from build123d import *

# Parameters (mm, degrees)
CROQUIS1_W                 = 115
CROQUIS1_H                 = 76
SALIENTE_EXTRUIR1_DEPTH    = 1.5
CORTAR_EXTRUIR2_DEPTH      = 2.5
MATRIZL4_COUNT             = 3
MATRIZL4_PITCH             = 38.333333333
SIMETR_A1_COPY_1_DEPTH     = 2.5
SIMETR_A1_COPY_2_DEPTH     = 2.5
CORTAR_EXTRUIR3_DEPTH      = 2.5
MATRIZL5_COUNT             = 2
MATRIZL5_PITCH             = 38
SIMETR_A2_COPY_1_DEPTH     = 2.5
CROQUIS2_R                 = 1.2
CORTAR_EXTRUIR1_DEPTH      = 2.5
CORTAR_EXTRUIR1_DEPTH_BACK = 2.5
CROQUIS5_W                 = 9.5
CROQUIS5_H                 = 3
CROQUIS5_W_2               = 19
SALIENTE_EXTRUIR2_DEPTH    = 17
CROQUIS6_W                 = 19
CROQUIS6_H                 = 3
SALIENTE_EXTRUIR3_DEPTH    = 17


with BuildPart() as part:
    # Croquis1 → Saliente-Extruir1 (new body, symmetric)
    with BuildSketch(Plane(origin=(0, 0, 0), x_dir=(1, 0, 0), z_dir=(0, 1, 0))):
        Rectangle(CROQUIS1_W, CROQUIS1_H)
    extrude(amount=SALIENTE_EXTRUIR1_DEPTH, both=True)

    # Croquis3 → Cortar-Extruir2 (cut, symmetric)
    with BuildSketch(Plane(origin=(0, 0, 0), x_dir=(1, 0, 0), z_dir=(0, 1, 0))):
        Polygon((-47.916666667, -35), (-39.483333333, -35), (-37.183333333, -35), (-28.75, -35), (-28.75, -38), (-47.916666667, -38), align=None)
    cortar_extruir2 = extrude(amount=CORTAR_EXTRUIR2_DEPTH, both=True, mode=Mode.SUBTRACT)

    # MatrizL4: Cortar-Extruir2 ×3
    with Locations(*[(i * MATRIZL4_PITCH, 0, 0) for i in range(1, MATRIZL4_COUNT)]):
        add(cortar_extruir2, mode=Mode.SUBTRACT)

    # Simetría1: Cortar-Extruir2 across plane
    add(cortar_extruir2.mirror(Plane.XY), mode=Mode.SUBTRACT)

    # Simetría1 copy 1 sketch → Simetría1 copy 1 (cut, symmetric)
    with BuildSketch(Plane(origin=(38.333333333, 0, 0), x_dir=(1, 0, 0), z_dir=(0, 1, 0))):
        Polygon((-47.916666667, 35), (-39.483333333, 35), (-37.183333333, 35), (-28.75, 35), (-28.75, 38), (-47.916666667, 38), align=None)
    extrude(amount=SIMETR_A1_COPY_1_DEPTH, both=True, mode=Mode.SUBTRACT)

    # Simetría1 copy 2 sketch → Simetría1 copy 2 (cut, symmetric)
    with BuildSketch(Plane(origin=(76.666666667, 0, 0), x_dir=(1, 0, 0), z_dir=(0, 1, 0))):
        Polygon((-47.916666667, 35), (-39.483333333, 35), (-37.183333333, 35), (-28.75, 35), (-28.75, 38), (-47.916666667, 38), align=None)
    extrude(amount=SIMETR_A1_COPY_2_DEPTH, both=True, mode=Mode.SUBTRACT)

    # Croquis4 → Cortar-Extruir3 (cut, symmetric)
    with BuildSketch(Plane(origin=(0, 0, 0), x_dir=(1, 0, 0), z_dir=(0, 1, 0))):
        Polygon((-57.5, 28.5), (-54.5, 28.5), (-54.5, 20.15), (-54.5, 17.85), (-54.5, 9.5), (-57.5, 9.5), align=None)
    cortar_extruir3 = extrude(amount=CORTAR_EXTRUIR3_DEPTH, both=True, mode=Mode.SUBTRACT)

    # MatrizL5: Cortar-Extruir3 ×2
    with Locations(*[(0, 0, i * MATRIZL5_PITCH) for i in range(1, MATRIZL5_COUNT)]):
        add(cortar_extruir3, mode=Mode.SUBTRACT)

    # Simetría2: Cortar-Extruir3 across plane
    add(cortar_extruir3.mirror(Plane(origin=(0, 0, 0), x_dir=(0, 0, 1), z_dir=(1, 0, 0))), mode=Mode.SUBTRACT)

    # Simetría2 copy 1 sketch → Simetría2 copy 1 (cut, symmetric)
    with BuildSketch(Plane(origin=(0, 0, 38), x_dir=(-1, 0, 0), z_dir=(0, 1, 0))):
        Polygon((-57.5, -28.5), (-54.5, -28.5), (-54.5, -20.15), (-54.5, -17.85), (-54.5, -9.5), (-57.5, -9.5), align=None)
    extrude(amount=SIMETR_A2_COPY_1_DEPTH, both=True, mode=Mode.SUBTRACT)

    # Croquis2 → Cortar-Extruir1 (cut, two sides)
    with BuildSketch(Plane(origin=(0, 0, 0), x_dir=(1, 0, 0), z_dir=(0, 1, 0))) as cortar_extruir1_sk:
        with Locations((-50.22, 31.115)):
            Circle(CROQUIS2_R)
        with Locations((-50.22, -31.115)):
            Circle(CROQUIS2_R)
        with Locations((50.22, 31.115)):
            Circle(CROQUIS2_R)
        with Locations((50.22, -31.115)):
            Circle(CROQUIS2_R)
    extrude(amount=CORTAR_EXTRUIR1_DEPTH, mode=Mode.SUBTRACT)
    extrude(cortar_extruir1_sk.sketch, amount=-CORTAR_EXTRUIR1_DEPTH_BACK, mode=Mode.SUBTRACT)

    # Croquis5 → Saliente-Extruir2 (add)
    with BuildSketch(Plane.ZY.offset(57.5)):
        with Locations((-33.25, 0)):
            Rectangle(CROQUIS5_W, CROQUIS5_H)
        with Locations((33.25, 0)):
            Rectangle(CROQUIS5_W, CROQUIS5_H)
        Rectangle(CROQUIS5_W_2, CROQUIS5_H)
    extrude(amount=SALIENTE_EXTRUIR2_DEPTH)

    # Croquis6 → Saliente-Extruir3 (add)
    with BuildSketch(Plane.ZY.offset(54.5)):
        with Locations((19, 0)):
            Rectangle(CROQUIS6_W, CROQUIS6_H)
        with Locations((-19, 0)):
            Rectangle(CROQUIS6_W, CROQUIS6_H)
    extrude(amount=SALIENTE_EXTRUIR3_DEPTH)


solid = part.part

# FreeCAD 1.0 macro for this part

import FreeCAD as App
import Part
import Sketcher

V = App.Vector

doc = App.newDocument("Part")
body = doc.addObject("PartDesign::Body", "Body")

# Sketch on XZ plane
sketch1 = body.newObject("Sketcher::SketchObject", "Sketch")
sketch1.AttachmentSupport = (doc.getObject("XZ_Plane"), [""])
sketch1.MapMode = "FlatFace"
sketch1.addGeometry([
    Part.LineSegment(V(-58, -38, 0), V(-58, 38, 0)),
    Part.LineSegment(V(-58, 38, 0), V(58, 38, 0)),
    Part.LineSegment(V(58, 38, 0), V(58, -38, 0)),
    Part.LineSegment(V(58, -38, 0), V(-58, -38, 0)),
], False)
sketch1.addConstraint([
    Sketcher.Constraint("Coincident", 0, 2, 1, 1),
    Sketcher.Constraint("Coincident", 1, 2, 2, 1),
    Sketcher.Constraint("Coincident", 2, 2, 3, 1),
    Sketcher.Constraint("Coincident", 3, 2, 0, 1),
    Sketcher.Constraint("Vertical", 0),
    Sketcher.Constraint("Horizontal", 1),
    Sketcher.Constraint("Vertical", 2),
    Sketcher.Constraint("Horizontal", 3),
    Sketcher.Constraint("Symmetric", 0, 2, 2, 2, -1, 1),
    Sketcher.Constraint("DistanceX", 1, 1, 1, 2, 115.0),
    Sketcher.Constraint("DistanceY", 0, 1, 0, 2, 76.0),
])
pad1 = body.newObject("PartDesign::Pad", "Pad")
pad1.Profile = sketch1
pad1.Length = 3
pad1.Midplane = True

# Sketch on XZ plane
sketch2 = body.newObject("Sketcher::SketchObject", "Sketch001")
sketch2.AttachmentSupport = (doc.getObject("XZ_Plane"), [""])
sketch2.MapMode = "FlatFace"
sketch2.addGeometry([
    Part.LineSegment(V(-28.8, 35, 0), V(-47.9, 35, 0)),
    Part.LineSegment(V(-47.9, 35, 0), V(-47.9, 38, 0)),
    Part.LineSegment(V(-47.9, 38, 0), V(-28.8, 38, 0)),
    Part.LineSegment(V(-28.8, 38, 0), V(-28.8, 35, 0)),
], False)
sketch2.addConstraint([
    Sketcher.Constraint("Coincident", 0, 2, 1, 1),
    Sketcher.Constraint("Coincident", 1, 2, 2, 1),
    Sketcher.Constraint("Coincident", 2, 2, 3, 1),
    Sketcher.Constraint("Coincident", 3, 2, 0, 1),
    Sketcher.Constraint("Horizontal", 0),
    Sketcher.Constraint("Vertical", 1),
    Sketcher.Constraint("Horizontal", 2),
    Sketcher.Constraint("Vertical", 3),
    Sketcher.Constraint("DistanceY", 1, 1, 1, 2, 3.0),
    Sketcher.Constraint("DistanceY", -1, 1, 0, 2, 35.0),
    Sketcher.Constraint("DistanceX", 2, 2, -1, 1, 28.75),
    Sketcher.Constraint("DistanceX", 0, 2, 0, 1, 19.166667),
])
pocket1 = body.newObject("PartDesign::Pocket", "Pocket")
pocket1.Profile = sketch2
pocket1.Length = 5
pocket1.Midplane = True
doc.recompute()

linearpattern = body.newObject("PartDesign::LinearPattern", "LinearPattern")
linearpattern.Originals = [pocket1]
linearpattern.Direction = (doc.getObject("X_Axis"), [""])
linearpattern.Mode = "offset"
linearpattern.Offset = 38.333333
linearpattern.Occurrences = 3
body.Tip = linearpattern
doc.recompute()

mirrored = body.newObject("PartDesign::Mirrored", "Mirrored")
mirrored.Originals = [pocket1]
mirrored.MirrorPlane = (doc.getObject("XY_Plane"), [""])
body.Tip = mirrored

# Sketch on XZ plane
sketch3 = body.newObject("Sketcher::SketchObject", "Sketch002")
sketch3.AttachmentSupport = (doc.getObject("XZ_Plane"), [""])
sketch3.MapMode = "FlatFace"
sketch3.addGeometry([
    Part.LineSegment(V(-9.6, -35, 0), V(9.6, -35, 0)),
    Part.LineSegment(V(9.6, -35, 0), V(9.6, -38, 0)),
    Part.LineSegment(V(9.6, -38, 0), V(-9.6, -38, 0)),
    Part.LineSegment(V(-9.6, -38, 0), V(-9.6, -35, 0)),
], False)
sketch3.addConstraint([
    Sketcher.Constraint("Coincident", 0, 2, 1, 1),
    Sketcher.Constraint("Coincident", 1, 2, 2, 1),
    Sketcher.Constraint("Coincident", 2, 2, 3, 1),
    Sketcher.Constraint("Coincident", 3, 2, 0, 1),
    Sketcher.Constraint("Horizontal", 0),
    Sketcher.Constraint("Vertical", 1),
    Sketcher.Constraint("Horizontal", 2),
    Sketcher.Constraint("Vertical", 3),
    Sketcher.Constraint("DistanceY", 1, 2, 1, 1, 3.0),
    Sketcher.Constraint("DistanceY", 0, 2, -1, 1, 35.0),
    Sketcher.Constraint("DistanceX", 0, 1, 0, 2, 19.166667),
    Sketcher.Constraint("DistanceX", -1, 1, 0, 2, 9.583333),
])
pocket2 = body.newObject("PartDesign::Pocket", "Pocket001")
pocket2.Profile = sketch3
pocket2.Length = 5
pocket2.Midplane = True

# Sketch on XZ plane
sketch4 = body.newObject("Sketcher::SketchObject", "Sketch003")
sketch4.AttachmentSupport = (doc.getObject("XZ_Plane"), [""])
sketch4.MapMode = "FlatFace"
sketch4.addGeometry([
    Part.LineSegment(V(28.8, -35, 0), V(47.9, -35, 0)),
    Part.LineSegment(V(47.9, -35, 0), V(47.9, -38, 0)),
    Part.LineSegment(V(47.9, -38, 0), V(28.8, -38, 0)),
    Part.LineSegment(V(28.8, -38, 0), V(28.8, -35, 0)),
], False)
sketch4.addConstraint([
    Sketcher.Constraint("Coincident", 0, 2, 1, 1),
    Sketcher.Constraint("Coincident", 1, 2, 2, 1),
    Sketcher.Constraint("Coincident", 2, 2, 3, 1),
    Sketcher.Constraint("Coincident", 3, 2, 0, 1),
    Sketcher.Constraint("Horizontal", 0),
    Sketcher.Constraint("Vertical", 1),
    Sketcher.Constraint("Horizontal", 2),
    Sketcher.Constraint("Vertical", 3),
    Sketcher.Constraint("DistanceY", 1, 2, 1, 1, 3.0),
    Sketcher.Constraint("DistanceY", 0, 2, -1, 1, 35.0),
    Sketcher.Constraint("DistanceX", -1, 1, 2, 2, 28.75),
    Sketcher.Constraint("DistanceX", 0, 1, 0, 2, 19.166667),
])
pocket3 = body.newObject("PartDesign::Pocket", "Pocket002")
pocket3.Profile = sketch4
pocket3.Length = 5
pocket3.Midplane = True

# Sketch on XZ plane
sketch5 = body.newObject("Sketcher::SketchObject", "Sketch004")
sketch5.AttachmentSupport = (doc.getObject("XZ_Plane"), [""])
sketch5.MapMode = "FlatFace"
sketch5.addGeometry([
    Part.LineSegment(V(-54.5, -28.5, 0), V(-57.5, -28.5, 0)),
    Part.LineSegment(V(-57.5, -28.5, 0), V(-57.5, -9.5, 0)),
    Part.LineSegment(V(-57.5, -9.5, 0), V(-54.5, -9.5, 0)),
    Part.LineSegment(V(-54.5, -9.5, 0), V(-54.5, -28.5, 0)),
], False)
sketch5.addConstraint([
    Sketcher.Constraint("Coincident", 0, 2, 1, 1),
    Sketcher.Constraint("Coincident", 1, 2, 2, 1),
    Sketcher.Constraint("Coincident", 2, 2, 3, 1),
    Sketcher.Constraint("Coincident", 3, 2, 0, 1),
    Sketcher.Constraint("Horizontal", 0),
    Sketcher.Constraint("Vertical", 1),
    Sketcher.Constraint("Horizontal", 2),
    Sketcher.Constraint("Vertical", 3),
    Sketcher.Constraint("DistanceX", 0, 2, 0, 1, 3.0),
    Sketcher.Constraint("DistanceY", 1, 1, 1, 2, 19.0),
    Sketcher.Constraint("DistanceX", 0, 2, -1, 1, 57.5),
    Sketcher.Constraint("DistanceY", 0, 2, -1, 1, 28.5),
])
pocket4 = body.newObject("PartDesign::Pocket", "Pocket003")
pocket4.Profile = sketch5
pocket4.Length = 5
pocket4.Midplane = True
doc.recompute()

linearpattern2 = body.newObject("PartDesign::LinearPattern", "LinearPattern001")
linearpattern2.Originals = [pocket4]
linearpattern2.Direction = (doc.getObject("Z_Axis"), [""])
linearpattern2.Mode = "offset"
linearpattern2.Offset = 38
linearpattern2.Occurrences = 2
body.Tip = linearpattern2
doc.recompute()

mirrored2 = body.newObject("PartDesign::Mirrored", "Mirrored001")
mirrored2.Originals = [pocket4]
mirrored2.MirrorPlane = (doc.getObject("YZ_Plane"), [""])
body.Tip = mirrored2

# Sketch on XZ plane
sketch6 = body.newObject("Sketcher::SketchObject", "Sketch005")
sketch6.AttachmentSupport = (doc.getObject("XZ_Plane"), [""])
sketch6.MapMode = "FlatFace"
sketch6.addGeometry([
    Part.LineSegment(V(57.5, 9.5, 0), V(54.5, 9.5, 0)),
    Part.LineSegment(V(54.5, 9.5, 0), V(54.5, 28.5, 0)),
    Part.LineSegment(V(54.5, 28.5, 0), V(57.5, 28.5, 0)),
    Part.LineSegment(V(57.5, 28.5, 0), V(57.5, 9.5, 0)),
], False)
sketch6.addConstraint([
    Sketcher.Constraint("Coincident", 0, 2, 1, 1),
    Sketcher.Constraint("Coincident", 1, 2, 2, 1),
    Sketcher.Constraint("Coincident", 2, 2, 3, 1),
    Sketcher.Constraint("Coincident", 3, 2, 0, 1),
    Sketcher.Constraint("Horizontal", 0),
    Sketcher.Constraint("Vertical", 1),
    Sketcher.Constraint("Horizontal", 2),
    Sketcher.Constraint("Vertical", 3),
    Sketcher.Constraint("DistanceX", 0, 2, 0, 1, 3.0),
    Sketcher.Constraint("DistanceY", 1, 1, 1, 2, 19.0),
    Sketcher.Constraint("DistanceX", -1, 1, 0, 2, 54.5),
    Sketcher.Constraint("DistanceY", -1, 1, 0, 2, 9.5),
])
pocket5 = body.newObject("PartDesign::Pocket", "Pocket004")
pocket5.Profile = sketch6
pocket5.Length = 5
pocket5.Midplane = True

# Sketch on XZ plane
sketch7 = body.newObject("Sketcher::SketchObject", "Sketch006")
sketch7.AttachmentSupport = (doc.getObject("XZ_Plane"), [""])
sketch7.MapMode = "FlatFace"
sketch7.addGeometry([
    Part.Circle(V(-50.2, -31.1, 0), V(0, 0, 1), 1.2),
    Part.Circle(V(-50.2, 31.1, 0), V(0, 0, 1), 1.2),
    Part.Circle(V(50.2, -31.1, 0), V(0, 0, 1), 1.2),
    Part.Circle(V(50.2, 31.1, 0), V(0, 0, 1), 1.2),
], False)
sketch7.addConstraint([
    Sketcher.Constraint("Equal", 0, 1),
    Sketcher.Constraint("Equal", 1, 2),
    Sketcher.Constraint("Equal", 2, 3),
    Sketcher.Constraint("Symmetric", 1, 3, 2, 3, -1, 1),
    Sketcher.Constraint("Symmetric", 0, 3, 3, 3, -1, 1),
    Sketcher.Constraint("Symmetric", 0, 3, 2, 3, -2),
    Sketcher.Constraint("Diameter", 0, 2.4),
    Sketcher.Constraint("DistanceX", 0, 3, -1, 1, 50.22),
    Sketcher.Constraint("DistanceY", 0, 3, 1, 3, 62.23),
])
pocket6 = body.newObject("PartDesign::Pocket", "Pocket005")
pocket6.Profile = sketch7
pocket6.Type = "ThroughAll"
pocket6.Midplane = True

# Sketch on YZ plane
sketch8 = body.newObject("Sketcher::SketchObject", "Sketch007")
sketch8.AttachmentSupport = (doc.getObject("YZ_Plane"), [""])
sketch8.MapMode = "FlatFace"
sketch8.AttachmentOffset = App.Placement(V(0, 0, -57.5), App.Rotation())
sketch8.addGeometry([
    Part.LineSegment(V(1.5, -38, 0), V(-1.5, -38, 0)),  # 0
    Part.LineSegment(V(-1.5, -38, 0), V(-1.5, -28.5, 0)),  # 1
    Part.LineSegment(V(-1.5, -28.5, 0), V(1.5, -28.5, 0)),  # 2
    Part.LineSegment(V(1.5, -28.5, 0), V(1.5, -38, 0)),  # 3
    Part.LineSegment(V(1.5, 28.5, 0), V(-1.5, 28.5, 0)),  # 4
    Part.LineSegment(V(-1.5, 28.5, 0), V(-1.5, 38, 0)),  # 5
    Part.LineSegment(V(-1.5, 38, 0), V(1.5, 38, 0)),  # 6
    Part.LineSegment(V(1.5, 38, 0), V(1.5, 28.5, 0)),  # 7
    Part.LineSegment(V(1.5, -9.5, 0), V(-1.5, -9.5, 0)),  # 8
    Part.LineSegment(V(-1.5, -9.5, 0), V(-1.5, 9.5, 0)),  # 9
    Part.LineSegment(V(-1.5, 9.5, 0), V(1.5, 9.5, 0)),  # 10
    Part.LineSegment(V(1.5, 9.5, 0), V(1.5, -9.5, 0)),  # 11
], False)
sketch8.addConstraint([
    Sketcher.Constraint("Coincident", 0, 2, 1, 1),
    Sketcher.Constraint("Coincident", 1, 2, 2, 1),
    Sketcher.Constraint("Coincident", 2, 2, 3, 1),
    Sketcher.Constraint("Coincident", 3, 2, 0, 1),
    Sketcher.Constraint("Coincident", 4, 2, 5, 1),
    Sketcher.Constraint("Coincident", 5, 2, 6, 1),
    Sketcher.Constraint("Coincident", 6, 2, 7, 1),
    Sketcher.Constraint("Coincident", 7, 2, 4, 1),
    Sketcher.Constraint("Coincident", 8, 2, 9, 1),
    Sketcher.Constraint("Coincident", 9, 2, 10, 1),
    Sketcher.Constraint("Coincident", 10, 2, 11, 1),
    Sketcher.Constraint("Coincident", 11, 2, 8, 1),
    Sketcher.Constraint("Horizontal", 0),
    Sketcher.Constraint("Vertical", 1),
    Sketcher.Constraint("Horizontal", 2),
    Sketcher.Constraint("Vertical", 3),
    Sketcher.Constraint("Horizontal", 4),
    Sketcher.Constraint("Vertical", 5),
    Sketcher.Constraint("Horizontal", 6),
    Sketcher.Constraint("Vertical", 7),
    Sketcher.Constraint("Horizontal", 8),
    Sketcher.Constraint("Vertical", 9),
    Sketcher.Constraint("Horizontal", 10),
    Sketcher.Constraint("Vertical", 11),
    Sketcher.Constraint("Symmetric", 2, 2, 4, 2, -1, 1),
    Sketcher.Constraint("Symmetric", 0, 2, 6, 2, -1, 1),
    Sketcher.Constraint("Symmetric", 8, 2, 10, 2, -1, 1),
    Sketcher.Constraint("Vertical", 1, 2, 4, 2),
    Sketcher.Constraint("Vertical", 5, 2, 8, 2),
    Sketcher.Constraint("DistanceX", 0, 2, 0, 1, 3.0),
    Sketcher.Constraint("DistanceY", 9, 1, 9, 2, 19.0),
    Sketcher.Constraint("DistanceY", 1, 1, 1, 2, 9.5),
    Sketcher.Constraint("DistanceY", 0, 2, -1, 1, 38.0),
])
pad2 = body.newObject("PartDesign::Pad", "Pad001")
pad2.Profile = sketch8
pad2.Length = 17
pad2.Reversed = True

# Sketch on YZ plane
sketch9 = body.newObject("Sketcher::SketchObject", "Sketch008")
sketch9.AttachmentSupport = (doc.getObject("YZ_Plane"), [""])
sketch9.MapMode = "FlatFace"
sketch9.AttachmentOffset = App.Placement(V(0, 0, -54.5), App.Rotation())
sketch9.addGeometry([
    Part.LineSegment(V(1.5, 9.5, 0), V(-1.5, 9.5, 0)),  # 0
    Part.LineSegment(V(-1.5, 9.5, 0), V(-1.5, 28.5, 0)),  # 1
    Part.LineSegment(V(-1.5, 28.5, 0), V(1.5, 28.5, 0)),  # 2
    Part.LineSegment(V(1.5, 28.5, 0), V(1.5, 9.5, 0)),  # 3
    Part.LineSegment(V(1.5, -28.5, 0), V(-1.5, -28.5, 0)),  # 4
    Part.LineSegment(V(-1.5, -28.5, 0), V(-1.5, -9.5, 0)),  # 5
    Part.LineSegment(V(-1.5, -9.5, 0), V(1.5, -9.5, 0)),  # 6
    Part.LineSegment(V(1.5, -9.5, 0), V(1.5, -28.5, 0)),  # 7
], False)
sketch9.addConstraint([
    Sketcher.Constraint("Coincident", 0, 2, 1, 1),
    Sketcher.Constraint("Coincident", 1, 2, 2, 1),
    Sketcher.Constraint("Coincident", 2, 2, 3, 1),
    Sketcher.Constraint("Coincident", 3, 2, 0, 1),
    Sketcher.Constraint("Coincident", 4, 2, 5, 1),
    Sketcher.Constraint("Coincident", 5, 2, 6, 1),
    Sketcher.Constraint("Coincident", 6, 2, 7, 1),
    Sketcher.Constraint("Coincident", 7, 2, 4, 1),
    Sketcher.Constraint("Horizontal", 0),
    Sketcher.Constraint("Vertical", 1),
    Sketcher.Constraint("Horizontal", 2),
    Sketcher.Constraint("Vertical", 3),
    Sketcher.Constraint("Horizontal", 4),
    Sketcher.Constraint("Vertical", 5),
    Sketcher.Constraint("Horizontal", 6),
    Sketcher.Constraint("Vertical", 7),
    Sketcher.Constraint("Symmetric", 2, 2, 4, 2, -1, 1),
    Sketcher.Constraint("Symmetric", 0, 2, 6, 2, -1, 1),
    Sketcher.Constraint("Vertical", 1, 2, 4, 2),
    Sketcher.Constraint("DistanceX", 0, 2, 0, 1, 3.0),
    Sketcher.Constraint("DistanceY", 1, 1, 1, 2, 19.0),
    Sketcher.Constraint("DistanceY", 4, 2, 0, 2, 38.0),
])
pad3 = body.newObject("PartDesign::Pad", "Pad002")
pad3.Profile = sketch9
pad3.Length = 17
pad3.Reversed = True

doc.recompute()
